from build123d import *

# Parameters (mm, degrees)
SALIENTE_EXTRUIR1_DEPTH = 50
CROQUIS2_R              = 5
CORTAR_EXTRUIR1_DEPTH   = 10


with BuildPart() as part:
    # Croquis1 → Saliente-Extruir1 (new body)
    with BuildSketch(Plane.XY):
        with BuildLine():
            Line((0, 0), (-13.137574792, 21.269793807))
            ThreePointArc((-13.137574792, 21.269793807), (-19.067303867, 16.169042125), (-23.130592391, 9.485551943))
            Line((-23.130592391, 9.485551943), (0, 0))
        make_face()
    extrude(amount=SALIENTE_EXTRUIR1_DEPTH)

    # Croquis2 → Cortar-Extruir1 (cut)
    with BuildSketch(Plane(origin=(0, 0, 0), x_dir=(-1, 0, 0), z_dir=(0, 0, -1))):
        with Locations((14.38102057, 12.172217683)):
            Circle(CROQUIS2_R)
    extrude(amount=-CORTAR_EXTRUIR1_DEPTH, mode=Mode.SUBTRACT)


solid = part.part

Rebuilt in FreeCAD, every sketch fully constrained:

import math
import FreeCAD as App
import Part
import Sketcher
Q = App.Units.Quantity

doc = App.newDocument("Part")
params = doc.addObject("Spreadsheet::Sheet", "Params")
for row, (alias, value) in enumerate([
    ("sketch1_radius", "25 mm"),
    ("pad1_length", "50 mm"),
    ("sketch2_diameter", "10 mm"),
    ("pocket1_length", "10 mm"),
], start=1):
    params.set(f"A{row}", alias)
    params.set(f"B{row}", "=" + value)
    params.setAlias(f"B{row}", alias)

body = doc.addObject("PartDesign::Body", "Body")

# Sketch on XY plane
sketch1 = body.newObject("Sketcher::SketchObject", "Sketch")
sketch1.AttachmentSupport = (doc.getObject("XY_Plane"), [""])
sketch1.MapMode = "FlatFace"
sketch1.addGeometry([
    Part.LineSegment(App.Vector(0, 0, 0), App.Vector(-13, 21, 0)),
    Part.ArcOfCircle(Part.Circle(App.Vector(0, 0, 0), App.Vector(0, 0, 1), 25), math.radians(122), math.radians(158)),
    Part.LineSegment(App.Vector(-23, 9, 0), App.Vector(0, 0, 0)),
], False)
sketch1.addConstraint([
    Sketcher.Constraint("Coincident", 0, 2, 1, 1),
    Sketcher.Constraint("Coincident", 1, 2, 2, 1),
    Sketcher.Constraint("Coincident", 2, 2, 0, 1),
    Sketcher.Constraint("Coincident", 1, 3, -1, 1),
    Sketcher.Constraint("Coincident", 2, 2, -1, 1),
    Sketcher.Constraint("Radius", 1, Q("25 mm")),
    Sketcher.Constraint("DistanceY", -1, 1, 1, 2, Q("9.485552 mm")),
    Sketcher.Constraint("DistanceY", 1, 2, 0, 2, Q("11.784242 mm")),
])
sketch1.setExpression("Constraints[5]", "Params.sketch1_radius")
pad1 = body.newObject("PartDesign::Pad", "Pad")
pad1.Profile = sketch1
pad1.setExpression("Length", "Params.pad1_length")

# Sketch on XY plane
sketch2 = body.newObject("Sketcher::SketchObject", "Sketch001")
sketch2.AttachmentSupport = (doc.getObject("XY_Plane"), [""])
sketch2.MapMode = "FlatFace"
sketch2.addGeometry(Part.Circle(App.Vector(-14, 12, 0), App.Vector(0, 0, 1), 5), False)
sketch2.addConstraint([
    Sketcher.Constraint("Diameter", 0, Q("10 mm")),
    Sketcher.Constraint("DistanceX", 0, 3, -1, 1, Q("14.381021 mm")),
    Sketcher.Constraint("DistanceY", -1, 1, 0, 3, Q("12.172218 mm")),
])
sketch2.setExpression("Constraints[0]", "Params.sketch2_diameter")
pocket1 = body.newObject("PartDesign::Pocket", "Pocket")
pocket1.Profile = sketch2
pocket1.setExpression("Length", "Params.pocket1_length")
pocket1.Reversed = True

doc.recompute()
